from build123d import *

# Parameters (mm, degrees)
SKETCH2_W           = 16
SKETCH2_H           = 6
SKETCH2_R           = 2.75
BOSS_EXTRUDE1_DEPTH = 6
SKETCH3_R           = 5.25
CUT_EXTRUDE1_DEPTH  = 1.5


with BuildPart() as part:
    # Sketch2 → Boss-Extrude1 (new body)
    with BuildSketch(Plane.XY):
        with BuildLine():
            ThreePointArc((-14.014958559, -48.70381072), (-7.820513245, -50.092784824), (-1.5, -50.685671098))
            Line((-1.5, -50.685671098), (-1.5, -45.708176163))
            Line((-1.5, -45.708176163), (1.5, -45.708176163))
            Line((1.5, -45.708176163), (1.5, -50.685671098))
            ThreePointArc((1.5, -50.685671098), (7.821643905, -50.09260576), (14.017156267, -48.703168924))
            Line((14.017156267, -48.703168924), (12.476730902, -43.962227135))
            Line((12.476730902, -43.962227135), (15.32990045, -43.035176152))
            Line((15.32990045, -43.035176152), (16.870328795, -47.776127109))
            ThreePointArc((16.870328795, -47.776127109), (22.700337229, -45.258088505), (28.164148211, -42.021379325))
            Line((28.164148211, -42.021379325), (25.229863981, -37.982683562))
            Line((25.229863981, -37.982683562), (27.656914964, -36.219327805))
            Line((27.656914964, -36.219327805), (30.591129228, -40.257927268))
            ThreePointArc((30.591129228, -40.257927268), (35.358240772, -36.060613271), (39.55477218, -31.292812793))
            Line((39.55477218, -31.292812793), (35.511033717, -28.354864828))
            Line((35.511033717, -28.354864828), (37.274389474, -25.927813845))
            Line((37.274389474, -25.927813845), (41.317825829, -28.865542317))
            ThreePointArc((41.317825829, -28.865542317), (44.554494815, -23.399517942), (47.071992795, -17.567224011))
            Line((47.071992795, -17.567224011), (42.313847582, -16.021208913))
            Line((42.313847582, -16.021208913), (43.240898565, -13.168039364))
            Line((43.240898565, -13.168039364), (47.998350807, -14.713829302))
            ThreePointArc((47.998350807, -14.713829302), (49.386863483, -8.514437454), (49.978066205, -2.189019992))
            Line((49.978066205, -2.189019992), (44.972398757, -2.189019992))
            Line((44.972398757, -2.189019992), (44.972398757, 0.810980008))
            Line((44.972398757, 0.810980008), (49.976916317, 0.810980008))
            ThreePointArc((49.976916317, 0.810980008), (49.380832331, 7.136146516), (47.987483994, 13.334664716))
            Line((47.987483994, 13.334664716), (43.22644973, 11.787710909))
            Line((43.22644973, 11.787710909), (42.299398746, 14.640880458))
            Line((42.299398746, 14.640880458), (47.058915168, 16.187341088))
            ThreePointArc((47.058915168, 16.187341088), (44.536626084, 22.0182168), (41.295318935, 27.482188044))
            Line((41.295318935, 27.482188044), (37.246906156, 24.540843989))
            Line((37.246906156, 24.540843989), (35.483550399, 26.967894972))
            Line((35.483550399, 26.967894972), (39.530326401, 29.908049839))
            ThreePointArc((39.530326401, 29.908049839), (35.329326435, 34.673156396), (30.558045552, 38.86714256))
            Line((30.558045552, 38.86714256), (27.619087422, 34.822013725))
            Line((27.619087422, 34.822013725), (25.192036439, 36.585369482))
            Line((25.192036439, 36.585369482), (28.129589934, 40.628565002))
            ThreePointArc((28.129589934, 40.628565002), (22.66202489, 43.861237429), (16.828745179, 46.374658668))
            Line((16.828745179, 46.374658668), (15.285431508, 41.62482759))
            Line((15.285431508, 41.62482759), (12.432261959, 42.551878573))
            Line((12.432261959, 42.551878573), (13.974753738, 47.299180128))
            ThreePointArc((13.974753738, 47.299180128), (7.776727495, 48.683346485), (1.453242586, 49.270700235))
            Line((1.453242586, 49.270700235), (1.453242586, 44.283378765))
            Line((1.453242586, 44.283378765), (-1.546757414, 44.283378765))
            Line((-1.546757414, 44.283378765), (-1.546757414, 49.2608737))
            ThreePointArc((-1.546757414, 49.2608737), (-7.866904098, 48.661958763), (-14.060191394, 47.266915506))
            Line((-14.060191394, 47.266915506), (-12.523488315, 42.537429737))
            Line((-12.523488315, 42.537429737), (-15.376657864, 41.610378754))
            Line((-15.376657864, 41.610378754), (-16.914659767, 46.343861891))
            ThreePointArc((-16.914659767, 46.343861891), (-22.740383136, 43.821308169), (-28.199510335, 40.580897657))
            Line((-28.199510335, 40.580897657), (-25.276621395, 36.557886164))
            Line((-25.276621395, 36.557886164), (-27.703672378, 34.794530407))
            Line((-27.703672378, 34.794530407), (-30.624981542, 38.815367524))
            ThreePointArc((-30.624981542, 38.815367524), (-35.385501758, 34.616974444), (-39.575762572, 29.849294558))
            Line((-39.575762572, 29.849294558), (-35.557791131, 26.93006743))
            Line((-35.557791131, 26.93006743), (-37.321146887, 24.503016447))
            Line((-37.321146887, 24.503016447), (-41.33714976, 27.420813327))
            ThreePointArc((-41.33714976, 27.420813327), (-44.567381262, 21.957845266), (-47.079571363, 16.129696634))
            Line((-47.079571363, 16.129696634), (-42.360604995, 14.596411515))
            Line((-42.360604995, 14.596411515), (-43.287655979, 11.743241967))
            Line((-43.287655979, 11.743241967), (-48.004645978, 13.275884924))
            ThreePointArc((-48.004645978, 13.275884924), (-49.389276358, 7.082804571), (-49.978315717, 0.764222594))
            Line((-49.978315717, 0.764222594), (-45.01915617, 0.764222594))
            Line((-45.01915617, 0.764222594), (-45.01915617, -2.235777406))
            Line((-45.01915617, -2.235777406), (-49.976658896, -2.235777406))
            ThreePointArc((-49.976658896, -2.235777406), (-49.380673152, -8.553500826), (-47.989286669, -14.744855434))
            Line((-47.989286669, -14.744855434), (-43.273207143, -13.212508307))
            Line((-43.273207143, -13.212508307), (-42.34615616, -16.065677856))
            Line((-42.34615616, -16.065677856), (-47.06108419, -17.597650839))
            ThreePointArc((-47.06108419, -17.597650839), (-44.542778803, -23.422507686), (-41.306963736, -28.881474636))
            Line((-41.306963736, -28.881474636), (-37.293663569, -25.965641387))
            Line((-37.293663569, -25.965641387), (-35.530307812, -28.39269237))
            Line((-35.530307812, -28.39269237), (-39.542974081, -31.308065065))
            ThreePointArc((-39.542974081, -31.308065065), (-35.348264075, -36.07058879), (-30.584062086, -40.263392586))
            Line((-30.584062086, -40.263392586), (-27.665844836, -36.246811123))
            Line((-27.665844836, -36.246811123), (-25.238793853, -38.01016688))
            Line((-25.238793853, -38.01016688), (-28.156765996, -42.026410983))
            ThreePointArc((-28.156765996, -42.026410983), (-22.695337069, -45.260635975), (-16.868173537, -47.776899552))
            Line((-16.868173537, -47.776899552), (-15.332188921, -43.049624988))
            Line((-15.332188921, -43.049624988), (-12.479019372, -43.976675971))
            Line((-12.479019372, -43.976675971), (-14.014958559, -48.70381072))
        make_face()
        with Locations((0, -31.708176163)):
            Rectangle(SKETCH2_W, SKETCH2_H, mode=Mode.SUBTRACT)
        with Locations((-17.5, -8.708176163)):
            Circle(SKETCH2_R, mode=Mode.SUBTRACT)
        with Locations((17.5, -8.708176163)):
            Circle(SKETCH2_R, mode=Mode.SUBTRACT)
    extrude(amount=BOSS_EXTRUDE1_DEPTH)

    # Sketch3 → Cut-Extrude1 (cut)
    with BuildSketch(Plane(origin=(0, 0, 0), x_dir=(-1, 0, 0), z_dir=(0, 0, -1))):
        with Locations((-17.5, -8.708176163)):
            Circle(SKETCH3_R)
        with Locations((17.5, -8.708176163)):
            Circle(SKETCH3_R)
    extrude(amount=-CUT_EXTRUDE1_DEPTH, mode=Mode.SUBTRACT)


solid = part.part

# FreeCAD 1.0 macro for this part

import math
import FreeCAD as App
import Part
import Sketcher

V = App.Vector
Q = App.Units.Quantity


def add_polygon(sketch, points):
    """Adds a closed chain of lines whose ends are joined by coincident constraints."""
    first, n = sketch.GeometryCount, len(points)
    for a, b in zip(points, points[1:] + points[:1]):
        sketch.addGeometry(Part.LineSegment(App.Vector(*a, 0), App.Vector(*b, 0)), False)
    for i in range(n):
        sketch.addConstraint(Sketcher.Constraint("Coincident", first + i, 2, first + (i + 1) % n, 1))

doc = App.newDocument("Part")
body = doc.addObject("PartDesign::Body", "Body")

sketch1 = doc.addObject("Sketcher::SketchObject", "Sketch")
body.addObject(sketch1)
sketch1.AttachmentSupport = (doc.XY_Plane, [""])
sketch1.MapMode = "FlatFace"
sketch1.addGeometry(Part.ArcOfCircle(Part.Circle(V(0, -0.7, 0), V(0, 0, 1), 50), math.radians(-106.28), math.radians(-91.72)), False)
sketch1.addGeometry(Part.LineSegment(V(-1.5, -50.7, 0), V(-1.5, -45.7, 0)), False)
sketch1.addGeometry(Part.LineSegment(V(-1.5, -45.7, 0), V(1.5, -45.7, 0)), False)
sketch1.addGeometry(Part.LineSegment(V(1.5, -45.7, 0), V(1.5, -50.7, 0)), False)
sketch1.addGeometry(Part.ArcOfCircle(Part.Circle(V(0, -0.7, 0), V(0, 0, 1), 50), math.radians(-88.28), math.radians(-73.72)), False)
sketch1.addGeometry(Part.LineSegment(V(14, -48.7, 0), V(12.5, -44, 0)), False)
sketch1.addGeometry(Part.LineSegment(V(12.5, -44, 0), V(15.3, -43, 0)), False)
sketch1.addGeometry(Part.LineSegment(V(15.3, -43, 0), V(16.9, -47.8, 0)), False)
sketch1.addGeometry(Part.ArcOfCircle(Part.Circle(V(0, -0.7, 0), V(0, 0, 1), 50), math.radians(-70.28), math.radians(-55.72)), False)
sketch1.addGeometry(Part.LineSegment(V(28.2, -42, 0), V(25.2, -38, 0)), False)
sketch1.addGeometry(Part.LineSegment(V(25.2, -38, 0), V(27.7, -36.2, 0)), False)
sketch1.addGeometry(Part.LineSegment(V(27.7, -36.2, 0), V(30.6, -40.3, 0)), False)
sketch1.addGeometry(Part.ArcOfCircle(Part.Circle(V(0, -0.7, 0), V(0, 0, 1), 50), math.radians(-52.28), math.radians(-37.71)), False)
sketch1.addGeometry(Part.LineSegment(V(39.6, -31.3, 0), V(35.5, -28.4, 0)), False)
sketch1.addGeometry(Part.LineSegment(V(35.5, -28.4, 0), V(37.3, -25.9, 0)), False)
sketch1.addGeometry(Part.LineSegment(V(37.3, -25.9, 0), V(41.3, -28.9, 0)), False)
sketch1.addGeometry(Part.ArcOfCircle(Part.Circle(V(0, -0.7, 0), V(0, 0, 1), 50), math.radians(-34.27), math.radians(-19.71)), False)
sketch1.addGeometry(Part.LineSegment(V(47.1, -17.6, 0), V(42.3, -16, 0)), False)
sketch1.addGeometry(Part.LineSegment(V(42.3, -16, 0), V(43.2, -13.2, 0)), False)
sketch1.addGeometry(Part.LineSegment(V(43.2, -13.2, 0), V(48, -14.7, 0)), False)
sketch1.addGeometry(Part.ArcOfCircle(Part.Circle(V(0, -0.7, 0), V(0, 0, 1), 50), math.radians(-16.27), math.radians(-1.7)), False)
sketch1.addGeometry(Part.LineSegment(V(50, -2.2, 0), V(45, -2.2, 0)), False)
sketch1.addGeometry(Part.LineSegment(V(45, -2.2, 0), V(45, 0.8, 0)), False)
sketch1.addGeometry(Part.LineSegment(V(45, 0.8, 0), V(50, 0.8, 0)), False)
sketch1.addGeometry(Part.ArcOfCircle(Part.Circle(V(0, -0.7, 0), V(0, 0, 1), 50), math.radians(1.74), math.radians(16.31)), False)
sketch1.addGeometry(Part.LineSegment(V(48, 13.3, 0), V(43.2, 11.8, 0)), False)
sketch1.addGeometry(Part.LineSegment(V(43.2, 11.8, 0), V(42.3, 14.6, 0)), False)
sketch1.addGeometry(Part.LineSegment(V(42.3, 14.6, 0), V(47.1, 16.2, 0)), False)
sketch1.addGeometry(Part.ArcOfCircle(Part.Circle(V(0, -0.7, 0), V(0, 0, 1), 50), math.radians(19.75), math.radians(34.32)), False)
sketch1.addGeometry(Part.LineSegment(V(41.3, 27.5, 0), V(37.2, 24.5, 0)), False)
sketch1.addGeometry(Part.LineSegment(V(37.2, 24.5, 0), V(35.5, 27, 0)), False)
sketch1.addGeometry(Part.LineSegment(V(35.5, 27, 0), V(39.5, 29.9, 0)), False)
sketch1.addGeometry(Part.ArcOfCircle(Part.Circle(V(0, -0.7, 0), V(0, 0, 1), 50), math.radians(37.76), math.radians(52.33)), False)
sketch1.addGeometry(Part.LineSegment(V(30.6, 38.9, 0), V(27.6, 34.8, 0)), False)
sketch1.addGeometry(Part.LineSegment(V(27.6, 34.8, 0), V(25.2, 36.6, 0)), False)
sketch1.addGeometry(Part.LineSegment(V(25.2, 36.6, 0), V(28.1, 40.6, 0)), False)
sketch1.addGeometry(Part.ArcOfCircle(Part.Circle(V(0, -0.7, 0), V(0, 0, 1), 50), math.radians(55.76), math.radians(70.33)), False)
sketch1.addGeometry(Part.LineSegment(V(16.8, 46.4, 0), V(15.3, 41.6, 0)), False)
sketch1.addGeometry(Part.LineSegment(V(15.3, 41.6, 0), V(12.4, 42.6, 0)), False)
sketch1.addGeometry(Part.LineSegment(V(12.4, 42.6, 0), V(14, 47.3, 0)), False)
sketch1.addGeometry(Part.ArcOfCircle(Part.Circle(V(0, -0.7, 0), V(0, 0, 1), 50), math.radians(73.77), math.radians(88.33)), False)
sketch1.addGeometry(Part.LineSegment(V(1.5, 49.3, 0), V(1.5, 44.3, 0)), False)
sketch1.addGeometry(Part.LineSegment(V(1.5, 44.3, 0), V(-1.5, 44.3, 0)), False)
sketch1.addGeometry(Part.LineSegment(V(-1.5, 44.3, 0), V(-1.5, 49.3, 0)), False)
sketch1.addGeometry(Part.ArcOfCircle(Part.Circle(V(0, -0.7, 0), V(0, 0, 1), 50), math.radians(91.77), math.radians(106.33)), False)
sketch1.addGeometry(Part.LineSegment(V(-14.1, 47.3, 0), V(-12.5, 42.5, 0)), False)
sketch1.addGeometry(Part.LineSegment(V(-12.5, 42.5, 0), V(-15.4, 41.6, 0)), False)
sketch1.addGeometry(Part.LineSegment(V(-15.4, 41.6, 0), V(-16.9, 46.3, 0)), False)
sketch1.addGeometry(Part.ArcOfCircle(Part.Circle(V(0, -0.7, 0), V(0, 0, 1), 50), math.radians(109.77), math.radians(124.33)), False)
sketch1.addGeometry(Part.LineSegment(V(-28.2, 40.6, 0), V(-25.3, 36.6, 0)), False)
sketch1.addGeometry(Part.LineSegment(V(-25.3, 36.6, 0), V(-27.7, 34.8, 0)), False)
sketch1.addGeometry(Part.LineSegment(V(-27.7, 34.8, 0), V(-30.6, 38.8, 0)), False)
sketch1.addGeometry(Part.ArcOfCircle(Part.Circle(V(0, -0.7, 0), V(0, 0, 1), 50), math.radians(127.77), math.radians(142.33)), False)
sketch1.addGeometry(Part.LineSegment(V(-39.6, 29.8, 0), V(-35.6, 26.9, 0)), False)
sketch1.addGeometry(Part.LineSegment(V(-35.6, 26.9, 0), V(-37.3, 24.5, 0)), False)
sketch1.addGeometry(Part.LineSegment(V(-37.3, 24.5, 0), V(-41.3, 27.4, 0)), False)
sketch1.addGeometry(Part.ArcOfCircle(Part.Circle(V(0, -0.7, 0), V(0, 0, 1), 50), math.radians(145.77), math.radians(160.32)), False)
sketch1.addGeometry(Part.LineSegment(V(-47.1, 16.1, 0), V(-42.4, 14.6, 0)), False)
sketch1.addGeometry(Part.LineSegment(V(-42.4, 14.6, 0), V(-43.3, 11.7, 0)), False)
sketch1.addGeometry(Part.LineSegment(V(-43.3, 11.7, 0), V(-48, 13.3, 0)), False)
sketch1.addGeometry(Part.ArcOfCircle(Part.Circle(V(0, -0.7, 0), V(0, 0, 1), 50), math.radians(163.76), math.radians(178.31)), False)
sketch1.addGeometry(Part.LineSegment(V(-50, 0.8, 0), V(-45, 0.8, 0)), False)
sketch1.addGeometry(Part.LineSegment(V(-45, 0.8, 0), V(-45, -2.2, 0)), False)
sketch1.addGeometry(Part.LineSegment(V(-45, -2.2, 0), V(-50, -2.2, 0)), False)
sketch1.addGeometry(Part.ArcOfCircle(Part.Circle(V(0, -0.7, 0), V(0, 0, 1), 50), math.radians(-178.25), math.radians(-163.7)), False)
sketch1.addGeometry(Part.LineSegment(V(-48, -14.7, 0), V(-43.3, -13.2, 0)), False)
sketch1.addGeometry(Part.LineSegment(V(-43.3, -13.2, 0), V(-42.3, -16.1, 0)), False)
sketch1.addGeometry(Part.LineSegment(V(-42.3, -16.1, 0), V(-47.1, -17.6, 0)), False)
sketch1.addGeometry(Part.ArcOfCircle(Part.Circle(V(0, -0.7, 0), V(0, 0, 1), 50), math.radians(-160.26), math.radians(-145.7)), False)
sketch1.addGeometry(Part.LineSegment(V(-41.3, -28.9, 0), V(-37.3, -26, 0)), False)
sketch1.addGeometry(Part.LineSegment(V(-37.3, -26, 0), V(-35.5, -28.4, 0)), False)
sketch1.addGeometry(Part.LineSegment(V(-35.5, -28.4, 0), V(-39.5, -31.3, 0)), False)
sketch1.addGeometry(Part.ArcOfCircle(Part.Circle(V(0, -0.7, 0), V(0, 0, 1), 50), math.radians(-142.27), math.radians(-127.71)), False)
sketch1.addGeometry(Part.LineSegment(V(-30.6, -40.3, 0), V(-27.7, -36.2, 0)), False)
sketch1.addGeometry(Part.LineSegment(V(-27.7, -36.2, 0), V(-25.2, -38, 0)), False)
sketch1.addGeometry(Part.LineSegment(V(-25.2, -38, 0), V(-28.2, -42, 0)), False)
sketch1.addGeometry(Part.ArcOfCircle(Part.Circle(V(0, -0.7, 0), V(0, 0, 1), 50), math.radians(-124.27), math.radians(-109.72)), False)
sketch1.addGeometry(Part.LineSegment(V(-16.9, -47.8, 0), V(-15.3, -43, 0)), False)
sketch1.addGeometry(Part.LineSegment(V(-15.3, -43, 0), V(-12.5, -44, 0)), False)
sketch1.addGeometry(Part.LineSegment(V(-12.5, -44, 0), V(-14, -48.7, 0)), False)
add_polygon(sketch1, [(8, -34.7), (-8, -34.7), (-8, -28.7), (8, -28.7)])
sketch1.addGeometry(Part.Circle(V(-17.5, -8.7, 0), V(0, 0, 1), 2.8), False)
sketch1.addGeometry(Part.Circle(V(17.5, -8.7, 0), V(0, 0, 1), 2.8), False)
sketch1.addConstraint([
    Sketcher.Constraint("Coincident", 0, 2, 1, 1),
    Sketcher.Constraint("Coincident", 1, 2, 2, 1),
    Sketcher.Constraint("Coincident", 2, 2, 3, 1),
    Sketcher.Constraint("Coincident", 3, 2, 4, 1),
    Sketcher.Constraint("Coincident", 4, 2, 5, 1),
    Sketcher.Constraint("Coincident", 5, 2, 6, 1),
    Sketcher.Constraint("Coincident", 6, 2, 7, 1),
    Sketcher.Constraint("Coincident", 7, 2, 8, 1),
    Sketcher.Constraint("Coincident", 8, 2, 9, 1),
    Sketcher.Constraint("Coincident", 9, 2, 10, 1),
    Sketcher.Constraint("Coincident", 10, 2, 11, 1),
    Sketcher.Constraint("Coincident", 11, 2, 12, 1),
    Sketcher.Constraint("Coincident", 12, 2, 13, 1),
    Sketcher.Constraint("Coincident", 13, 2, 14, 1),
    Sketcher.Constraint("Coincident", 14, 2, 15, 1),
    Sketcher.Constraint("Coincident", 15, 2, 16, 1),
    Sketcher.Constraint("Coincident", 16, 2, 17, 1),
    Sketcher.Constraint("Coincident", 17, 2, 18, 1),
    Sketcher.Constraint("Coincident", 18, 2, 19, 1),
    Sketcher.Constraint("Coincident", 19, 2, 20, 1),
    Sketcher.Constraint("Coincident", 20, 2, 21, 1),
    Sketcher.Constraint("Coincident", 21, 2, 22, 1),
    Sketcher.Constraint("Coincident", 22, 2, 23, 1),
    Sketcher.Constraint("Coincident", 23, 2, 24, 1),
    Sketcher.Constraint("Coincident", 24, 2, 25, 1),
    Sketcher.Constraint("Coincident", 25, 2, 26, 1),
    Sketcher.Constraint("Coincident", 26, 2, 27, 1),
    Sketcher.Constraint("Coincident", 27, 2, 28, 1),
    Sketcher.Constraint("Coincident", 28, 2, 29, 1),
    Sketcher.Constraint("Coincident", 29, 2, 30, 1),
    Sketcher.Constraint("Coincident", 30, 2, 31, 1),
    Sketcher.Constraint("Coincident", 31, 2, 32, 1),
    Sketcher.Constraint("Coincident", 32, 2, 33, 1),
    Sketcher.Constraint("Coincident", 33, 2, 34, 1),
    Sketcher.Constraint("Coincident", 34, 2, 35, 1),
    Sketcher.Constraint("Coincident", 35, 2, 36, 1),
    Sketcher.Constraint("Coincident", 36, 2, 37, 1),
    Sketcher.Constraint("Coincident", 37, 2, 38, 1),
    Sketcher.Constraint("Coincident", 38, 2, 39, 1),
    Sketcher.Constraint("Coincident", 39, 2, 40, 1),
    Sketcher.Constraint("Coincident", 40, 2, 41, 1),
    Sketcher.Constraint("Coincident", 41, 2, 42, 1),
    Sketcher.Constraint("Coincident", 42, 2, 43, 1),
    Sketcher.Constraint("Coincident", 43, 2, 44, 1),
    Sketcher.Constraint("Coincident", 44, 2, 45, 1),
    Sketcher.Constraint("Coincident", 45, 2, 46, 1),
    Sketcher.Constraint("Coincident", 46, 2, 47, 1),
    Sketcher.Constraint("Coincident", 47, 2, 48, 1),
    Sketcher.Constraint("Coincident", 48, 2, 49, 1),
    Sketcher.Constraint("Coincident", 49, 2, 50, 1),
    Sketcher.Constraint("Coincident", 50, 2, 51, 1),
    Sketcher.Constraint("Coincident", 51, 2, 52, 1),
    Sketcher.Constraint("Coincident", 52, 2, 53, 1),
    Sketcher.Constraint("Coincident", 53, 2, 54, 1),
    Sketcher.Constraint("Coincident", 54, 2, 55, 1),
    Sketcher.Constraint("Coincident", 55, 2, 56, 1),
    Sketcher.Constraint("Coincident", 56, 2, 57, 1),
    Sketcher.Constraint("Coincident", 57, 2, 58, 1),
    Sketcher.Constraint("Coincident", 58, 2, 59, 1),
    Sketcher.Constraint("Coincident", 59, 2, 60, 1),
    Sketcher.Constraint("Coincident", 60, 2, 61, 1),
    Sketcher.Constraint("Coincident", 61, 2, 62, 1),
    Sketcher.Constraint("Coincident", 62, 2, 63, 1),
    Sketcher.Constraint("Coincident", 63, 2, 64, 1),
    Sketcher.Constraint("Coincident", 64, 2, 65, 1),
    Sketcher.Constraint("Coincident", 65, 2, 66, 1),
    Sketcher.Constraint("Coincident", 66, 2, 67, 1),
    Sketcher.Constraint("Coincident", 67, 2, 68, 1),
    Sketcher.Constraint("Coincident", 68, 2, 69, 1),
    Sketcher.Constraint("Coincident", 69, 2, 70, 1),
    Sketcher.Constraint("Coincident", 70, 2, 71, 1),
    Sketcher.Constraint("Coincident", 71, 2, 72, 1),
    Sketcher.Constraint("Coincident", 72, 2, 73, 1),
    Sketcher.Constraint("Coincident", 73, 2, 74, 1),
    Sketcher.Constraint("Coincident", 74, 2, 75, 1),
    Sketcher.Constraint("Coincident", 75, 2, 76, 1),
    Sketcher.Constraint("Coincident", 76, 2, 77, 1),
    Sketcher.Constraint("Coincident", 77, 2, 78, 1),
    Sketcher.Constraint("Coincident", 78, 2, 79, 1),
    Sketcher.Constraint("Coincident", 79, 2, 0, 1),
    Sketcher.Constraint("Vertical", 1),
    Sketcher.Constraint("Horizontal", 2),
    Sketcher.Constraint("Vertical", 3),
    Sketcher.Constraint("Horizontal", 21),
    Sketcher.Constraint("Vertical", 22),
    Sketcher.Constraint("Horizontal", 23),
    Sketcher.Constraint("Vertical", 41),
    Sketcher.Constraint("Horizontal", 42),
    Sketcher.Constraint("Vertical", 43),
    Sketcher.Constraint("Horizontal", 61),
    Sketcher.Constraint("Vertical", 62),
    Sketcher.Constraint("Horizontal", 63),
    Sketcher.Constraint("Horizontal", 80),
    Sketcher.Constraint("Vertical", 81),
    Sketcher.Constraint("Horizontal", 82),
    Sketcher.Constraint("Vertical", 83),
    Sketcher.Constraint("Coincident", 4, 3, 0, 3),
    Sketcher.Constraint("Coincident", 8, 3, 0, 3),
    Sketcher.Constraint("Coincident", 12, 3, 0, 3),
    Sketcher.Constraint("Coincident", 16, 3, 0, 3),
    Sketcher.Constraint("Coincident", 20, 3, 0, 3),
    Sketcher.Constraint("Coincident", 24, 3, 0, 3),
    Sketcher.Constraint("Coincident", 28, 3, 0, 3),
    Sketcher.Constraint("Coincident", 32, 3, 0, 3),
    Sketcher.Constraint("Coincident", 36, 3, 0, 3),
    Sketcher.Constraint("Coincident", 40, 3, 0, 3),
    Sketcher.Constraint("Coincident", 44, 3, 0, 3),
    Sketcher.Constraint("Coincident", 48, 3, 0, 3),
    Sketcher.Constraint("Coincident", 52, 3, 0, 3),
    Sketcher.Constraint("Coincident", 56, 3, 0, 3),
    Sketcher.Constraint("Coincident", 60, 3, 0, 3),
    Sketcher.Constraint("Coincident", 64, 3, 0, 3),
    Sketcher.Constraint("Coincident", 68, 3, 0, 3),
    Sketcher.Constraint("Coincident", 72, 3, 0, 3),
    Sketcher.Constraint("Coincident", 76, 3, 0, 3),
    Sketcher.Constraint("Equal", 0, 4),
    Sketcher.Constraint("Equal", 4, 8),
    Sketcher.Constraint("Equal", 8, 12),
    Sketcher.Constraint("Equal", 12, 16),
    Sketcher.Constraint("Equal", 16, 20),
    Sketcher.Constraint("Equal", 20, 24),
    Sketcher.Constraint("Equal", 24, 28),
    Sketcher.Constraint("Equal", 28, 32),
    Sketcher.Constraint("Equal", 32, 36),
    Sketcher.Constraint("Equal", 36, 40),
    Sketcher.Constraint("Equal", 40, 48),
    Sketcher.Constraint("Equal", 48, 52),
    Sketcher.Constraint("Equal", 52, 56),
    Sketcher.Constraint("Equal", 56, 60),
    Sketcher.Constraint("Equal", 60, 64),
    Sketcher.Constraint("Equal", 64, 68),
    Sketcher.Constraint("Equal", 68, 72),
    Sketcher.Constraint("Equal", 72, 76),
    Sketcher.Constraint("Equal", 84, 85),
    Sketcher.Constraint("Symmetric", 84, 3, 85, 3, -2),
    Sketcher.Constraint("Symmetric", 0, 2, 3, 2, -2),
    Sketcher.Constraint("Perpendicular", 5, 6),
    Sketcher.Constraint("Perpendicular", 6, 7),
    Sketcher.Constraint("Perpendicular", 9, 10),
    Sketcher.Constraint("Perpendicular", 10, 11),
    Sketcher.Constraint("Perpendicular", 13, 14),
    Sketcher.Constraint("Perpendicular", 14, 15),
    Sketcher.Constraint("Perpendicular", 17, 18),
    Sketcher.Constraint("Perpendicular", 18, 19),
    Sketcher.Constraint("Perpendicular", 7, 25),
    Sketcher.Constraint("Perpendicular", 25, 26),
    Sketcher.Constraint("Perpendicular", 26, 27),
    Sketcher.Constraint("Perpendicular", 11, 29),
    Sketcher.Constraint("Perpendicular", 29, 30),
    Sketcher.Constraint("Perpendicular", 30, 31),
    Sketcher.Constraint("Perpendicular", 15, 33),
    Sketcher.Constraint("Perpendicular", 33, 34),
    Sketcher.Constraint("Perpendicular", 34, 35),
    Sketcher.Constraint("Perpendicular", 19, 37),
    Sketcher.Constraint("Perpendicular", 37, 38),
    Sketcher.Constraint("Perpendicular", 38, 39),
    Sketcher.Constraint("Perpendicular", 27, 45),
    Sketcher.Constraint("Perpendicular", 45, 46),
    Sketcher.Constraint("Perpendicular", 46, 47),
    Sketcher.Constraint("Perpendicular", 31, 49),
    Sketcher.Constraint("Perpendicular", 49, 50),
    Sketcher.Constraint("Perpendicular", 50, 51),
    Sketcher.Constraint("Perpendicular", 35, 53),
    Sketcher.Constraint("Perpendicular", 53, 54),
    Sketcher.Constraint("Perpendicular", 54, 55),
    Sketcher.Constraint("Perpendicular", 39, 57),
    Sketcher.Constraint("Perpendicular", 57, 58),
    Sketcher.Constraint("Perpendicular", 58, 59),
    Sketcher.Constraint("Perpendicular", 47, 65),
    Sketcher.Constraint("Perpendicular", 65, 66),
    Sketcher.Constraint("Perpendicular", 66, 67),
    Sketcher.Constraint("Perpendicular", 51, 69),
    Sketcher.Constraint("Perpendicular", 69, 70),
    Sketcher.Constraint("Perpendicular", 70, 71),
    Sketcher.Constraint("Perpendicular", 55, 73),
    Sketcher.Constraint("Perpendicular", 73, 74),
    Sketcher.Constraint("Perpendicular", 74, 75),
    Sketcher.Constraint("Perpendicular", 59, 77),
    Sketcher.Constraint("Perpendicular", 77, 78),
    Sketcher.Constraint("Perpendicular", 78, 79),
    Sketcher.Constraint("Equal", 2, 42),
    Sketcher.Constraint("Equal", 42, 22),
    Sketcher.Constraint("Equal", 3, 43),
    Sketcher.Constraint("Equal", 22, 62),
    Sketcher.Constraint("Equal", 6, 10),
    Sketcher.Constraint("Equal", 10, 14),
    Sketcher.Constraint("Equal", 14, 18),
    Sketcher.Constraint("Equal", 18, 26),
    Sketcher.Constraint("Equal", 26, 30),
    Sketcher.Constraint("Equal", 30, 34),
    Sketcher.Constraint("Equal", 34, 38),
    Sketcher.Constraint("Equal", 38, 46),
    Sketcher.Constraint("Equal", 46, 50),
    Sketcher.Constraint("Equal", 50, 54),
    Sketcher.Constraint("Equal", 54, 58),
    Sketcher.Constraint("Equal", 58, 66),
    Sketcher.Constraint("Equal", 66, 70),
    Sketcher.Constraint("Equal", 70, 74),
    Sketcher.Constraint("Equal", 74, 78),
    Sketcher.Constraint("Radius", 0, 50.0),
    Sketcher.Constraint("Diameter", 84, 5.5),
    Sketcher.Constraint("DistanceX", 2, 1, 2, 2, 3.0),
    Sketcher.Constraint("DistanceX", 80, 2, 80, 1, 16.0),
    Sketcher.Constraint("DistanceY", 81, 1, 81, 2, 6.0),
    Sketcher.Constraint("Angle", 5, Q("108 deg")),
    Sketcher.Constraint("Angle", 9, Q("126 deg")),
    Sketcher.Constraint("Angle", 13, Q("144 deg")),
    Sketcher.Constraint("Angle", 17, Q("162 deg")),
    Sketcher.Constraint("Distance", 6, 3.0),
    Sketcher.Constraint("DistanceX", 80, 2, -1, 1, 8.0),
    Sketcher.Constraint("DistanceX", 84, 3, -1, 1, 17.5),
    Sketcher.Constraint("Radius", 44, 49.992984),
    Sketcher.Constraint("DistanceX", 61, 1, 61, 2, 4.95916),
    Sketcher.Constraint("DistanceY", 41, 2, 41, 1, 4.987321),
    Sketcher.Constraint("DistanceX", -1, 1, 6, 2, 15.3299),
    Sketcher.Constraint("DistanceX", -1, 1, 18, 2, 43.240899),
    Sketcher.Constraint("DistanceX", -1, 1, 21, 2, 44.972399),
    Sketcher.Constraint("DistanceX", -1, 1, 26, 2, 42.299399),
    Sketcher.Constraint("DistanceY", -1, 1, 40, 2, 49.2707),
    Sketcher.Constraint("DistanceY", 76, 2, -1, 1, 47.7769),
    Sketcher.Constraint("Distance", 5, 4.984921),
    Sketcher.Constraint("Distance", 17, 5.00301),
    Sketcher.Constraint("Distance", 27, 5.004452),
    Sketcher.Constraint("Distance", 31, 5.00209),
    Sketcher.Constraint("Distance", 39, 4.991608),
    Sketcher.Constraint("Distance", 47, 4.977079),
    Sketcher.Constraint("Distance", 51, 4.970028),
    Sketcher.Constraint("Distance", 65, 4.958779),
    Sketcher.Constraint("Distance", 67, 4.957569),
    Sketcher.Constraint("Distance", 69, 4.960712),
    Sketcher.Constraint("Distance", 71, 4.959928),
    Sketcher.Constraint("Distance", 75, 4.964351),
    Sketcher.Constraint("Distance", 77, 4.970551),
    Sketcher.Constraint("DistanceX", 21, 2, 21, 1, 5.005667),
    Sketcher.Constraint("DistanceX", 63, 2, 63, 1, 4.957503),
    Sketcher.Constraint("DistanceY", 1, 1, 1, 2, 4.977495),
    Sketcher.Constraint("DistanceX", -1, 1, 8, 2, 28.164148),
    Sketcher.Constraint("DistanceX", -1, 1, 14, 2, 37.274389),
    Sketcher.Constraint("DistanceX", -1, 1, 28, 2, 41.295319),
    Sketcher.Constraint("DistanceY", -1, 1, 34, 2, 36.585369),
    Sketcher.Constraint("DistanceX", -1, 1, 35, 2, 28.12959),
    Sketcher.Constraint("DistanceY", -1, 1, 36, 2, 46.374659),
    Sketcher.Constraint("DistanceX", 44, 2, -1, 1, 14.060191),
    Sketcher.Constraint("DistanceX", 48, 2, -1, 1, 28.19951),
    Sketcher.Constraint("DistanceX", 53, 2, -1, 1, 35.557791),
    Sketcher.Constraint("DistanceX", 55, 2, -1, 1, 41.33715),
    Sketcher.Constraint("DistanceX", 56, 2, -1, 1, 47.079571),
    Sketcher.Constraint("DistanceY", -1, 1, 57, 2, 14.596412),
    Sketcher.Constraint("DistanceY", 73, 2, -1, 1, 36.246811),
    Sketcher.Constraint("Distance", 9, 4.992103),
    Sketcher.Constraint("Distance", 13, 4.998336),
    Sketcher.Constraint("DistanceY", 84, 3, -1, 1, 8.708176),
    Sketcher.Constraint("DistanceY", 80, 2, -1, 1, 34.708176),
])
pad1 = doc.addObject("PartDesign::Pad", "Pad")
body.addObject(pad1)
pad1.Profile = sketch1
pad1.Length = 6

sketch2 = doc.addObject("Sketcher::SketchObject", "Sketch001")
body.addObject(sketch2)
sketch2.AttachmentSupport = (doc.XY_Plane, [""])
sketch2.MapMode = "FlatFace"
sketch2.addGeometry([
    Part.Circle(V(18, -9, 0), V(0, 0, 1), 5),
    Part.Circle(V(-18, -9, 0), V(0, 0, 1), 5),
], False)
sketch2.addConstraint([
    Sketcher.Constraint("Equal", 0, 1),
    Sketcher.Constraint("Symmetric", 0, 3, 1, 3, -2),
    Sketcher.Constraint("Diameter", 0, 10.5),
    Sketcher.Constraint("DistanceX", 1, 3, 0, 3, 35.0),
    Sketcher.Constraint("DistanceY", 0, 3, -1, 1, 8.708176),
])
pocket1 = doc.addObject("PartDesign::Pocket", "Pocket")
body.addObject(pocket1)
pocket1.Profile = sketch2
pocket1.Length = 1.5
pocket1.Reversed = True

doc.recompute()
